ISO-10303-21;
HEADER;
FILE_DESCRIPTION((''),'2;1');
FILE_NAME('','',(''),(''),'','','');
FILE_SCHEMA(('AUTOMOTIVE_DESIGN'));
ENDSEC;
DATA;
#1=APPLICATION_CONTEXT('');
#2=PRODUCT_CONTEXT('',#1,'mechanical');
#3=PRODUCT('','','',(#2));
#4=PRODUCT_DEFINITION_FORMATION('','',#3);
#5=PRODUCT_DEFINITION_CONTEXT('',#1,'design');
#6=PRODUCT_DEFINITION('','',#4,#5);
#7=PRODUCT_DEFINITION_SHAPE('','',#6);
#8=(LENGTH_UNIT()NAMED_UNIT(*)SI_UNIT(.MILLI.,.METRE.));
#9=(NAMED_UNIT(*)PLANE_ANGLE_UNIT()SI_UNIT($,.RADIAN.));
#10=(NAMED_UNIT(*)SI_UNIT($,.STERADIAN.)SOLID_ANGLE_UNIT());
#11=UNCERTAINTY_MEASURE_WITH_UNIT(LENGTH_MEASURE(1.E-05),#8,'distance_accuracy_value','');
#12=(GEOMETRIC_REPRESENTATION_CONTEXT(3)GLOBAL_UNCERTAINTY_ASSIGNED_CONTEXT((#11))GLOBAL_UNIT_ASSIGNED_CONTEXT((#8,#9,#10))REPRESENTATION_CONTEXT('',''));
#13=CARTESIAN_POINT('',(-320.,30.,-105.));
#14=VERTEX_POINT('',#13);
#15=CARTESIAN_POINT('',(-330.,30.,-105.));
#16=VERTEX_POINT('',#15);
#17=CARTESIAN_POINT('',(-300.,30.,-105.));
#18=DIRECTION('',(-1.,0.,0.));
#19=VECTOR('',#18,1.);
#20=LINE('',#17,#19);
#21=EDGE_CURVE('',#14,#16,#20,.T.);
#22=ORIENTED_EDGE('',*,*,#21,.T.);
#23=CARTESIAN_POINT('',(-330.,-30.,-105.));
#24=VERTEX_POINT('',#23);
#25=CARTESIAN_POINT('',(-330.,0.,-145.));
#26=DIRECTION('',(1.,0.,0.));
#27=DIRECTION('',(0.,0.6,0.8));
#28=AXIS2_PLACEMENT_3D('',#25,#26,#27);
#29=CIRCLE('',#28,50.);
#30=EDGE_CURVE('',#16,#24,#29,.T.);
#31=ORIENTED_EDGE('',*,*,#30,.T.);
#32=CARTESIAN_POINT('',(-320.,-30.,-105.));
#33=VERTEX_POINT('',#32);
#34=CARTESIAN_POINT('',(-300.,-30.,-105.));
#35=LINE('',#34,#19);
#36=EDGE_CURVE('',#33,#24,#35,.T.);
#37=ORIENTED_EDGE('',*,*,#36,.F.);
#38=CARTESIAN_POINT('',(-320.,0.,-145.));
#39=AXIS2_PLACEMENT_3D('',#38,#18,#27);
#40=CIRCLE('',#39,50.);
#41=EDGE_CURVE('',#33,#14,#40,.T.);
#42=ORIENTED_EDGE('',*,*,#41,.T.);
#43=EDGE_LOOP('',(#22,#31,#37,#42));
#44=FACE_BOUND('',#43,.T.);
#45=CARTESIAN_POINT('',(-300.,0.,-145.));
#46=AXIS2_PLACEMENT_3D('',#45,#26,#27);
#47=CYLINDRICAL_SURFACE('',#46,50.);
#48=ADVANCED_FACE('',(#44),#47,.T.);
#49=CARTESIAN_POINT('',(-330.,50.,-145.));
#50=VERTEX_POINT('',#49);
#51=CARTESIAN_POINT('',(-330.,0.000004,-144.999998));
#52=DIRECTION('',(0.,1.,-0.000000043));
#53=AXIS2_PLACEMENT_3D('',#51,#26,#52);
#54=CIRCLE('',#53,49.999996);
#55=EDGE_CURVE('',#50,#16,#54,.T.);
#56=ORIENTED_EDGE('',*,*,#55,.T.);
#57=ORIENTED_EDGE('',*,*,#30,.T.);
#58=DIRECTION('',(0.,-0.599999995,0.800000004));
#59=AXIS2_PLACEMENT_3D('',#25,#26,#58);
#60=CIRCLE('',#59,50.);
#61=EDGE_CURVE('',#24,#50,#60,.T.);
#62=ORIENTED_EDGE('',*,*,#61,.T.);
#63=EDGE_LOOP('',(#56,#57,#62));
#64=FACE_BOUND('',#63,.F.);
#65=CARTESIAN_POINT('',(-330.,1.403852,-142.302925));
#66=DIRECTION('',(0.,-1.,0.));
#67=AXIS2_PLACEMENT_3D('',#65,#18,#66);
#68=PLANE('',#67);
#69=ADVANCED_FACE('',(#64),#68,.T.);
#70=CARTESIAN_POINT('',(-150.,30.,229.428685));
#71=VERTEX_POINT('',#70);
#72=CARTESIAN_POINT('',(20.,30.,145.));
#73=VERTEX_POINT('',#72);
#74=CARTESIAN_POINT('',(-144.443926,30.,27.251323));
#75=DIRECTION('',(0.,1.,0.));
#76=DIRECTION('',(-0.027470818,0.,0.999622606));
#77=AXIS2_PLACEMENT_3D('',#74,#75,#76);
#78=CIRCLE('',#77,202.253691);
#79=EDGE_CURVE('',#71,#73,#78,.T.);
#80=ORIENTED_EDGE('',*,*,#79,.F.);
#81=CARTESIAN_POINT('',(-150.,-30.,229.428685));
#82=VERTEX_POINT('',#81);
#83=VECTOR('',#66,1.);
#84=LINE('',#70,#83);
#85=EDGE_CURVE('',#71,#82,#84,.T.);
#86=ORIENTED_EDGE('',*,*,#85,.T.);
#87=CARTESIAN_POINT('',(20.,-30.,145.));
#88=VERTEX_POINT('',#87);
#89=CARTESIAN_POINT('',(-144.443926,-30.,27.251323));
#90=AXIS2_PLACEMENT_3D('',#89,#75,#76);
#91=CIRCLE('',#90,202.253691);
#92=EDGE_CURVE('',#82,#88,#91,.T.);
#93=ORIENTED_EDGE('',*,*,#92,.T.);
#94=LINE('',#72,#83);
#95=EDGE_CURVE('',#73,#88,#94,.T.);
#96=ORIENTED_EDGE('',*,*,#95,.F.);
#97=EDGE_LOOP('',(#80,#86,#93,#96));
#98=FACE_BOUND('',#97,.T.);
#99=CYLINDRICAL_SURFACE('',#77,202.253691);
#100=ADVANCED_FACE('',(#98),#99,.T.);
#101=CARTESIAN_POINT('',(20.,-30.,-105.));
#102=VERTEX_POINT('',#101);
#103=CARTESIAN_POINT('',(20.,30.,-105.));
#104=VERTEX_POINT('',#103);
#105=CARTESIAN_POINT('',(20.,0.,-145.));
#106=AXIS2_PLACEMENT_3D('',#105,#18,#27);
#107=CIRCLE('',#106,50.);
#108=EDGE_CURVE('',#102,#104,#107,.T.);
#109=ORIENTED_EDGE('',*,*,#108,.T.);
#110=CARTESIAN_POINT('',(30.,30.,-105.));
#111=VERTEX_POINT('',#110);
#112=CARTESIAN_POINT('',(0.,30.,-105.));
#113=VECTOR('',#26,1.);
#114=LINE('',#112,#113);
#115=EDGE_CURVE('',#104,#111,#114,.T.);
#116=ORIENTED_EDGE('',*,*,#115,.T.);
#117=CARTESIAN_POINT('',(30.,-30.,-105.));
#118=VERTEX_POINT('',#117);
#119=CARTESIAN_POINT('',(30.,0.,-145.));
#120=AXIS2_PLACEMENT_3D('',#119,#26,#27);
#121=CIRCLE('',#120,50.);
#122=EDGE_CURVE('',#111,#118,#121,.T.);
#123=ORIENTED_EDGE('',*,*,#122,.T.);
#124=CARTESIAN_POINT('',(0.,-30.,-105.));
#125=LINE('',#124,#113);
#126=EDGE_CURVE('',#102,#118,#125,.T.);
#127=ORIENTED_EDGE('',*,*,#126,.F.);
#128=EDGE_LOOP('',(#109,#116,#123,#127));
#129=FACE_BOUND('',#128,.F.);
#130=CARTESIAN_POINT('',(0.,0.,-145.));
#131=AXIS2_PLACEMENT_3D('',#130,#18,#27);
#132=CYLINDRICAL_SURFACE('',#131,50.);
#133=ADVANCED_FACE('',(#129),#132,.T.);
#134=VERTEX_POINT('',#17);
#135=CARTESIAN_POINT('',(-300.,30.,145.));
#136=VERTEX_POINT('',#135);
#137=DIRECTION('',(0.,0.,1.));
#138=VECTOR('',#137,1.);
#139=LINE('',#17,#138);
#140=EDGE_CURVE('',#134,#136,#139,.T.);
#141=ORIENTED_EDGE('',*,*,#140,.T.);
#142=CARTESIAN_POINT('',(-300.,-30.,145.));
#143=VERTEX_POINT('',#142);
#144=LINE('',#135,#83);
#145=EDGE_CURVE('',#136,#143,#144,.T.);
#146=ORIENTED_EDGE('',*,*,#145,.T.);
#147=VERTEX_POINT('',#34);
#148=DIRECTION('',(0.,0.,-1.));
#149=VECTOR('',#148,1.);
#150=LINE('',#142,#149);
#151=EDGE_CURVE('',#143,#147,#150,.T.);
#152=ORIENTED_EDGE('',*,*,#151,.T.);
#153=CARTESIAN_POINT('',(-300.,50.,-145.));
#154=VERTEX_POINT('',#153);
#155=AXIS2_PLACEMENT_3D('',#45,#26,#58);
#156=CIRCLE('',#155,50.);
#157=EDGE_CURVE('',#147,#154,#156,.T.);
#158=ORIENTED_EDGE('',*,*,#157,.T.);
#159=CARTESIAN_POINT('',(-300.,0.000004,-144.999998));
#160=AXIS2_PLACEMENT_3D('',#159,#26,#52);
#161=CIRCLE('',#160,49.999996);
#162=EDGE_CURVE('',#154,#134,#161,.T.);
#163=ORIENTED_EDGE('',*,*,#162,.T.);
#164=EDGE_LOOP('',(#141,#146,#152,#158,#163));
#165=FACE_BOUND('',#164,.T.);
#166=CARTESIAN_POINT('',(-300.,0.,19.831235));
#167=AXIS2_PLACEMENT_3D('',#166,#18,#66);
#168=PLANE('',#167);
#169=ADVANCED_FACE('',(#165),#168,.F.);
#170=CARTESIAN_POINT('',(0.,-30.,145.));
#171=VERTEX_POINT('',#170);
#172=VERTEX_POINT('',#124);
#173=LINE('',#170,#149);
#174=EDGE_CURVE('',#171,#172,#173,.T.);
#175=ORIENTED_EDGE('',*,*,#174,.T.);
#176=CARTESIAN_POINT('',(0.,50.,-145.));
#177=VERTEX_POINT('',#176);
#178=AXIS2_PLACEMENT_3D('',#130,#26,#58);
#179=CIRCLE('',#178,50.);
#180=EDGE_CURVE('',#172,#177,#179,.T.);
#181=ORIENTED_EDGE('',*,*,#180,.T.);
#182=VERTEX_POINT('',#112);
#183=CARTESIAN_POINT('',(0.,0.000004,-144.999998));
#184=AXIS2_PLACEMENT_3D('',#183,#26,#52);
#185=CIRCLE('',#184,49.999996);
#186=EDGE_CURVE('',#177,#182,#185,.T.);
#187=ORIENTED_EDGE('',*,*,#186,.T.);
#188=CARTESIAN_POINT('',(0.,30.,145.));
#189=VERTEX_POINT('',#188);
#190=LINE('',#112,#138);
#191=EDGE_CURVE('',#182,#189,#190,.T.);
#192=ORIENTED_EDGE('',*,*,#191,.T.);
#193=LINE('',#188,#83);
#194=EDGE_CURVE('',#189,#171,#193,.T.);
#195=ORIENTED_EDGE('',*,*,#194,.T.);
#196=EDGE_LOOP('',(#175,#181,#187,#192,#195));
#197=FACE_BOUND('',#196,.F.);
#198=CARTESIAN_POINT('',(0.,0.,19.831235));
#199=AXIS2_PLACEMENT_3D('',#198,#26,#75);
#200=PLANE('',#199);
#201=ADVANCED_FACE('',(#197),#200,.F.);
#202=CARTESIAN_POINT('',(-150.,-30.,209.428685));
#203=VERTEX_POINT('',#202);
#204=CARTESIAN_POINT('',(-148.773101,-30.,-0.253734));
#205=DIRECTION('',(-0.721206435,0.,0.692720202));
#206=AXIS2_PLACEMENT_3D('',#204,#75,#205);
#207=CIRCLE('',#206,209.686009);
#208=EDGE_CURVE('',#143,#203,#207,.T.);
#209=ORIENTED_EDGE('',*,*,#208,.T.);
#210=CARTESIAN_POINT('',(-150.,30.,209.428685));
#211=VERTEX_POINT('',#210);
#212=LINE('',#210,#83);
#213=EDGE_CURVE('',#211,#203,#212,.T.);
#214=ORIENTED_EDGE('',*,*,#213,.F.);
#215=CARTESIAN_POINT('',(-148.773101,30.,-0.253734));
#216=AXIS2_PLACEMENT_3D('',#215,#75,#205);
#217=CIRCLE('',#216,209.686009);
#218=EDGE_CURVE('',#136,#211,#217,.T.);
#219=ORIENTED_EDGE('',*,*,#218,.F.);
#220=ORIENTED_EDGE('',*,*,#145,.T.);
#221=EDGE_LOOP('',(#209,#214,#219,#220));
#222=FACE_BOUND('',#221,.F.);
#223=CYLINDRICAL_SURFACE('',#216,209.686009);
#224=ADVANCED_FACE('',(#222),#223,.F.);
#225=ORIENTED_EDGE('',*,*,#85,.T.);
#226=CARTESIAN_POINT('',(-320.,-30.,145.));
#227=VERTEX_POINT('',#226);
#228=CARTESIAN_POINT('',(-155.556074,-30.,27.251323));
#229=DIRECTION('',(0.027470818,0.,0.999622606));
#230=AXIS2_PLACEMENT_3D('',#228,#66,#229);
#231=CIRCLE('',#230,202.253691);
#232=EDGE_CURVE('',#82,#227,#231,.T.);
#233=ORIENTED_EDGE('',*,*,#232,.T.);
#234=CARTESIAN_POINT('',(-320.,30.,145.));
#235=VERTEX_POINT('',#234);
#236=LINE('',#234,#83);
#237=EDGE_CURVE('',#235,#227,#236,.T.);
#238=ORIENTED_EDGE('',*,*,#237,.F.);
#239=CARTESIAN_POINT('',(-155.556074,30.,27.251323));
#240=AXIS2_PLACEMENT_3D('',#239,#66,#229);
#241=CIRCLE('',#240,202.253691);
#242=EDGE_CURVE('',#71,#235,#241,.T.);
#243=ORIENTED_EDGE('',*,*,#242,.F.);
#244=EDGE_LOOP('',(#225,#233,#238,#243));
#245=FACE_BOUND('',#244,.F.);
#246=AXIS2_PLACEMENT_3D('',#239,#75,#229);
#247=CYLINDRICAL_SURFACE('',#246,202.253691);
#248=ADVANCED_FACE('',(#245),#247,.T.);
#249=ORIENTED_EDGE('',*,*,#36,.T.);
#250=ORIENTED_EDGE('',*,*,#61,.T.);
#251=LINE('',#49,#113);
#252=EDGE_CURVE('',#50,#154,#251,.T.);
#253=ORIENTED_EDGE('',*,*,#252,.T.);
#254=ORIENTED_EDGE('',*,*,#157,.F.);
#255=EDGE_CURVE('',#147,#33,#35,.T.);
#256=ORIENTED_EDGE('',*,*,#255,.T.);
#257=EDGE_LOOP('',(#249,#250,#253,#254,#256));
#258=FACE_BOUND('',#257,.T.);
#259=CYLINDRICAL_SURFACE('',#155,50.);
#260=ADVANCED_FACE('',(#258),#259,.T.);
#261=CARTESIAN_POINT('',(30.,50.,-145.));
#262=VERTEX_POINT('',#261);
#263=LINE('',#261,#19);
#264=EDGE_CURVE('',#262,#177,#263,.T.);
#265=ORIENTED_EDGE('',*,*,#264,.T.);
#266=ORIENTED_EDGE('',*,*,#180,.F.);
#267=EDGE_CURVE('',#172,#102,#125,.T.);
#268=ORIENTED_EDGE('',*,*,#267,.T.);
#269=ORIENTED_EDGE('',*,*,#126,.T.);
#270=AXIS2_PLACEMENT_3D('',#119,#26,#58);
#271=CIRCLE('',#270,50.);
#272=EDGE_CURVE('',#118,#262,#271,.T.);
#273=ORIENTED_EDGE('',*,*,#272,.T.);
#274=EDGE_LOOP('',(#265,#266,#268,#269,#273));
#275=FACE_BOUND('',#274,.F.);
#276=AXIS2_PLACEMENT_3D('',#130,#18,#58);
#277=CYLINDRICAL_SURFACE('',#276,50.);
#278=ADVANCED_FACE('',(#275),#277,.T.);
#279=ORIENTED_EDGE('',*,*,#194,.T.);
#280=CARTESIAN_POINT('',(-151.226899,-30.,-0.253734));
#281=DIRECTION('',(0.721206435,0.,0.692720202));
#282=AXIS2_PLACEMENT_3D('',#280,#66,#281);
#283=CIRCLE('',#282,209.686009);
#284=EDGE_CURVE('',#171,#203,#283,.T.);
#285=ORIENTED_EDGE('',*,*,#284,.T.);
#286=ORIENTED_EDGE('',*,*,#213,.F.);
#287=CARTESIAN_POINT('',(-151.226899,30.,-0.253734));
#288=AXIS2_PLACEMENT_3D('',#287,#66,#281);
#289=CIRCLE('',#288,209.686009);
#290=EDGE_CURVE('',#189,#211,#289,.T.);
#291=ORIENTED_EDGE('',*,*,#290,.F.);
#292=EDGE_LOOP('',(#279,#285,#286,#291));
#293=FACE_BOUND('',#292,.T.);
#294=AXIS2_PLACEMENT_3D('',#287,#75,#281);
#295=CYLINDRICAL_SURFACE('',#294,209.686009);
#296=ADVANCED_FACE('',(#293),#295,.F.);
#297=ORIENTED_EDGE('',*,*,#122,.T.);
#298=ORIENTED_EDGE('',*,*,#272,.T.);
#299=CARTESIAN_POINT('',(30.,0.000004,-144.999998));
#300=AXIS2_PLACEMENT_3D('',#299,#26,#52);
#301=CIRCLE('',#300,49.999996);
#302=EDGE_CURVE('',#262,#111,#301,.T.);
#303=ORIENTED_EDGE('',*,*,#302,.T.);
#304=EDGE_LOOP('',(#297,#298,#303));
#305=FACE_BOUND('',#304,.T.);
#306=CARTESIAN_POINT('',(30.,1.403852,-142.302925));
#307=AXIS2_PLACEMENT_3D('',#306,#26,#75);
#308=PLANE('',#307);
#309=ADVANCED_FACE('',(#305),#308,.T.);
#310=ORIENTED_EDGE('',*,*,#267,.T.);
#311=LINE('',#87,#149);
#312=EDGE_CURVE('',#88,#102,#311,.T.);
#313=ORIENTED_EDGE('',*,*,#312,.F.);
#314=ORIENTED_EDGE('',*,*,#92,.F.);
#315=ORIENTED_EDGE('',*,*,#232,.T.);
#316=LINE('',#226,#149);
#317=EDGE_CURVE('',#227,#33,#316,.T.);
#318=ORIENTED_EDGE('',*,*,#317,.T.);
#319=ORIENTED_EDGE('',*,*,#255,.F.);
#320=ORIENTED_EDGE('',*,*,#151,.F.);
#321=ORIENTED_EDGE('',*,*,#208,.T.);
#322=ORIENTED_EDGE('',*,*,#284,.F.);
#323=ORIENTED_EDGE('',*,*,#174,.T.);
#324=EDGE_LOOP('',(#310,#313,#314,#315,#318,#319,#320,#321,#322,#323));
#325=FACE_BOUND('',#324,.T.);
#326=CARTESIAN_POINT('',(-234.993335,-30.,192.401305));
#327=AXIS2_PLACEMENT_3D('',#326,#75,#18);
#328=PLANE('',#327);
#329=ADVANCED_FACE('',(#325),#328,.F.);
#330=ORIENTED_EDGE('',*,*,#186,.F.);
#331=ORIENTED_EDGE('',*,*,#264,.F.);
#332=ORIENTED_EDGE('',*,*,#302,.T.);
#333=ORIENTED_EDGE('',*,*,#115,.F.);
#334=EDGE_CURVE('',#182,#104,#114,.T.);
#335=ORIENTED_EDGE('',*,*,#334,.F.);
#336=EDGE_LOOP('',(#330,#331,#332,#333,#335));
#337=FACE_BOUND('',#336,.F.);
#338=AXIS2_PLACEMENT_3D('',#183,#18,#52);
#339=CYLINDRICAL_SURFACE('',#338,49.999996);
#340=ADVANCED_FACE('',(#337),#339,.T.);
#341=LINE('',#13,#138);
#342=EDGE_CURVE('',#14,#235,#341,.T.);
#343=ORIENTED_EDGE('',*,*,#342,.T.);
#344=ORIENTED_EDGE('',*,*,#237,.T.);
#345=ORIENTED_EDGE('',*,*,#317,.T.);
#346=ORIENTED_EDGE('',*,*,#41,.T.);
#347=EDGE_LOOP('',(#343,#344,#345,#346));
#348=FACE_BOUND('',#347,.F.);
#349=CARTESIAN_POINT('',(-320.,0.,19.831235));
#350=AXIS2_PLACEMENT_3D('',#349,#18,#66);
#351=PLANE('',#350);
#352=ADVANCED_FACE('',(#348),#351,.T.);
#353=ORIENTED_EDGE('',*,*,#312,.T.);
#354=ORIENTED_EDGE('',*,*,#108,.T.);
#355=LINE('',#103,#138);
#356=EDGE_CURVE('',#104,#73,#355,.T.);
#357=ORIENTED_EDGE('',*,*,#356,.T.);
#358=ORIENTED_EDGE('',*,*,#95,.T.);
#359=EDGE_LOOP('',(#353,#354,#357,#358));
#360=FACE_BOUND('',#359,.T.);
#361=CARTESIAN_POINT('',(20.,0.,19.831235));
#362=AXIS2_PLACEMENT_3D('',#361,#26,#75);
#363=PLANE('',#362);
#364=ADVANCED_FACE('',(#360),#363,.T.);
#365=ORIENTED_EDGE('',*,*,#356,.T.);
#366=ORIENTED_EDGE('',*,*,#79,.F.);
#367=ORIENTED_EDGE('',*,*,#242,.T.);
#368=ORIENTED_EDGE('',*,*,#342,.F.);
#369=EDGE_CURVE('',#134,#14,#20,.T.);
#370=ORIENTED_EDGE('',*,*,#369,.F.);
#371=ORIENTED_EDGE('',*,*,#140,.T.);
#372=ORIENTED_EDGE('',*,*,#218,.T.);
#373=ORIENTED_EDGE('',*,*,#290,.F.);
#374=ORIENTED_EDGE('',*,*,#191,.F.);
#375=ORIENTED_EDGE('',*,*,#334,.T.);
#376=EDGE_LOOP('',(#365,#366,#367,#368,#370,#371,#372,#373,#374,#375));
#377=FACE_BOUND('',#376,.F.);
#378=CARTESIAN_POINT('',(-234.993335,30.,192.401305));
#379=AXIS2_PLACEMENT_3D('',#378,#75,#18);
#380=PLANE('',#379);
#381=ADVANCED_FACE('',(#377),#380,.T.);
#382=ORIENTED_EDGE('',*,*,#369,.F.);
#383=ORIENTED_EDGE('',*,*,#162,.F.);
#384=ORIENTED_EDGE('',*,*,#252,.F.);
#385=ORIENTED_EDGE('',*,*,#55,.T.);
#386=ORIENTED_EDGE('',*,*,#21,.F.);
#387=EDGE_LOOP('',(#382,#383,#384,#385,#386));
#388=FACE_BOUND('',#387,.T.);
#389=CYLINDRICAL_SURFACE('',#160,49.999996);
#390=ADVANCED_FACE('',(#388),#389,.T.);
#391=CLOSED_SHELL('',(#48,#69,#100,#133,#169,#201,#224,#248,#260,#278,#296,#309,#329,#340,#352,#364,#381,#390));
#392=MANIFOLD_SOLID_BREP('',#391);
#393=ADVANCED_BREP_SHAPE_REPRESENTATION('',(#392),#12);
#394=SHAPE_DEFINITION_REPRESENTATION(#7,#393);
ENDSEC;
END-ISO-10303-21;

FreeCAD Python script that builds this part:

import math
import FreeCAD as App
import Part
import Sketcher
Q = App.Units.Quantity


def add_polygon(sketch, points):
    """Adds a closed chain of lines whose ends are joined by coincident constraints."""
    first, n = sketch.GeometryCount, len(points)
    for a, b in zip(points, points[1:] + points[:1]):
        sketch.addGeometry(Part.LineSegment(App.Vector(*a, 0), App.Vector(*b, 0)), False)
    for i in range(n):
        sketch.addConstraint(Sketcher.Constraint("Coincident", first + i, 2, first + (i + 1) % n, 1))

doc = App.newDocument("Part")
body = doc.addObject("PartDesign::Body", "Body")

sketch1 = body.newObject("Sketcher::SketchObject", "Sketch")
sketch1.AttachmentSupport = (doc.getObject("YZ_Plane"), [""])
sketch1.MapMode = "FlatFace"
sketch1.addGeometry([
    Part.ArcOfCircle(Part.Circle(App.Vector(0.000004, -144.999998, 0), App.Vector(0, 0, 1), 49.999996), math.radians(-0.000002), math.radians(53.130105)),
    Part.ArcOfCircle(Part.Circle(App.Vector(0, -145, 0), App.Vector(0, 0, 1), 50), math.radians(53.130102), math.radians(126.869898)),
    Part.ArcOfCircle(Part.Circle(App.Vector(0, -145, 0), App.Vector(0, 0, 1), 50), math.radians(126.869897), math.radians(360)),
], False)
sketch1.addConstraint([
    Sketcher.Constraint("Tangent", 0, 2, 1, 1),
    Sketcher.Constraint("Tangent", 1, 2, 2, 1),
    Sketcher.Constraint("Tangent", 2, 2, 0, 1),
    Sketcher.Constraint("Symmetric", 0, 2, 1, 2, -2),
    Sketcher.Constraint("Horizontal", 1, 3, 2, 2),
    Sketcher.Constraint("Radius", 1, Q("50 mm")),
    Sketcher.Constraint("DistanceY", 1, 3, -1, 1, Q("145 mm")),
    Sketcher.Constraint("DistanceX", -1, 1, 0, 2, Q("30 mm")),
])
pad1 = body.newObject("PartDesign::Pad", "Pad")
pad1.Profile = sketch1
pad1.Length = 30

sketch2 = body.newObject("Sketcher::SketchObject", "Sketch001")
sketch2.AttachmentSupport = (doc.getObject("YZ_Plane"), [""])
sketch2.MapMode = "FlatFace"
sketch2.addGeometry([
    Part.LineSegment(App.Vector(30, -105, 0), App.Vector(30, 145, 0)),
    Part.LineSegment(App.Vector(30, 145, 0), App.Vector(-30, 145, 0)),
    Part.LineSegment(App.Vector(-30, 145, 0), App.Vector(-30, -105, 0)),
    Part.ArcOfCircle(Part.Circle(App.Vector(0, -145, 0), App.Vector(0, 0, 1), 50), math.radians(126.869897), math.radians(360)),
    Part.ArcOfCircle(Part.Circle(App.Vector(0.000004, -144.999998, 0), App.Vector(0, 0, 1), 49.999996), math.radians(-0.000002), math.radians(53.130105)),
], False)
sketch2.addConstraint([
    Sketcher.Constraint("Coincident", 0, 2, 1, 1),
    Sketcher.Constraint("Coincident", 1, 2, 2, 1),
    Sketcher.Constraint("Coincident", 2, 2, 3, 1),
    Sketcher.Constraint("Tangent", 3, 2, 4, 1),
    Sketcher.Constraint("Coincident", 4, 2, 0, 1),
    Sketcher.Constraint("Vertical", 0),
    Sketcher.Constraint("Horizontal", 1),
    Sketcher.Constraint("Vertical", 2),
    Sketcher.Constraint("Symmetric", 2, 2, 4, 2, -2),
    Sketcher.Constraint("PointOnObject", 3, 3, -2),
    Sketcher.Constraint("Radius", 3, Q("50 mm")),
    Sketcher.Constraint("DistanceX", 1, 2, 1, 1, Q("60 mm")),
    Sketcher.Constraint("DistanceY", 0, 1, 0, 2, Q("250 mm")),
    Sketcher.Constraint("DistanceY", 3, 3, -1, 1, Q("145 mm")),
    Sketcher.Constraint("DistanceY", 3, 2, -1, 1, Q("145 mm")),
])
pad2 = body.newObject("PartDesign::Pad", "Pad001")
pad2.Profile = sketch2
pad2.Length = 20

sketch3 = body.newObject("Sketcher::SketchObject", "Sketch002")
sketch3.AttachmentSupport = (doc.getObject("XZ_Plane"), [""])
sketch3.MapMode = "FlatFace"
add_polygon(sketch3, [(-121.063344, 147.348359), (-121.063344, 87.617159), (-59.2485, 87.617159), (-59.2485, 147.348359)])
sketch3.addConstraint([
    Sketcher.Constraint("Vertical", 0),
    Sketcher.Constraint("Horizontal", 1),
    Sketcher.Constraint("Vertical", 2),
    Sketcher.Constraint("Horizontal", 3),
    Sketcher.Constraint("DistanceY", 0, 2, 0, 1, Q("59.7312 mm")),
    Sketcher.Constraint("DistanceX", 1, 2, -1, 1, Q("59.2485 mm")),
    Sketcher.Constraint("DistanceX", 1, 1, 1, 2, Q("61.814844 mm")),
    Sketcher.Constraint("DistanceY", -1, 1, 0, 2, Q("87.617159 mm")),
])
pocket1 = body.newObject("PartDesign::Pocket", "Pocket")
pocket1.Profile = sketch3
pocket1.Length = 100
pocket1.Midplane = True

sketch4 = body.newObject("Sketcher::SketchObject", "Sketch003")
sketch4.AttachmentSupport = (doc.getObject("XZ_Plane"), [""])
sketch4.MapMode = "FlatFace"
sketch4.AttachmentOffset = App.Placement(App.Vector(0, 0, -30), App.Rotation())
sketch4.addGeometry([
    Part.ArcOfCircle(Part.Circle(App.Vector(-151.226899, -0.253734, 0), App.Vector(0, 0, 1), 209.686009), math.radians(43.845824), math.radians(89.664753)),
    Part.LineSegment(App.Vector(-150, 209.428685, 0), App.Vector(-150, 229.428685, 0)),
    Part.ArcOfCircle(Part.Circle(App.Vector(-144.443926, 27.251323, 0), App.Vector(0, 0, 1), 202.253691), math.radians(35.604236), math.radians(91.57416)),
    Part.LineSegment(App.Vector(20, 145, 0), App.Vector(0, 145, 0)),
], False)
sketch4.addConstraint([
    Sketcher.Constraint("Coincident", 0, 2, 1, 1),
    Sketcher.Constraint("Coincident", 1, 2, 2, 2),
    Sketcher.Constraint("Coincident", 2, 1, 3, 1),
    Sketcher.Constraint("Coincident", 3, 2, 0, 1),
    Sketcher.Constraint("Vertical", 1),
    Sketcher.Constraint("Horizontal", 3),
    Sketcher.Constraint("PointOnObject", 3, 2, -2),
    Sketcher.Constraint("Equal", 3, 1),
    Sketcher.Constraint("DistanceX", 3, 2, 3, 1, Q("20 mm")),
    Sketcher.Constraint("DistanceX", 0, 2, -1, 1, Q("150 mm")),
    Sketcher.Constraint("DistanceY", -1, 1, 2, 1, Q("145 mm")),
    Sketcher.Constraint("Radius", 0, Q("209.686009 mm")),
    Sketcher.Constraint("Radius", 2, Q("202.253691 mm")),
    Sketcher.Constraint("DistanceX", 0, 3, -1, 1, Q("151.226899 mm")),
])
pad3 = body.newObject("PartDesign::Pad", "Pad002")
pad3.Profile = sketch4
pad3.Length = 60
body2 = doc.addObject("PartDesign::Body", "Body001")
doc.recompute()

body2.BaseFeature = body
doc.recompute()

mirroring = doc.addObject("Part::Mirroring", "Mirroring")
mirroring.Source = body
mirroring.Base = App.Vector(-150, 0, 219.428685)
mirroring.Normal = App.Vector(-1, 0, 0)
body3 = doc.addObject("PartDesign::Body", "Body002")
body3.BaseFeature = mirroring
boolean = body2.newObject("PartDesign::Boolean", "Boolean")
boolean.Type = "Fuse"
boolean.addObjects([body3])
doc.recompute()
mirroring.Visibility = False

doc.recompute()
